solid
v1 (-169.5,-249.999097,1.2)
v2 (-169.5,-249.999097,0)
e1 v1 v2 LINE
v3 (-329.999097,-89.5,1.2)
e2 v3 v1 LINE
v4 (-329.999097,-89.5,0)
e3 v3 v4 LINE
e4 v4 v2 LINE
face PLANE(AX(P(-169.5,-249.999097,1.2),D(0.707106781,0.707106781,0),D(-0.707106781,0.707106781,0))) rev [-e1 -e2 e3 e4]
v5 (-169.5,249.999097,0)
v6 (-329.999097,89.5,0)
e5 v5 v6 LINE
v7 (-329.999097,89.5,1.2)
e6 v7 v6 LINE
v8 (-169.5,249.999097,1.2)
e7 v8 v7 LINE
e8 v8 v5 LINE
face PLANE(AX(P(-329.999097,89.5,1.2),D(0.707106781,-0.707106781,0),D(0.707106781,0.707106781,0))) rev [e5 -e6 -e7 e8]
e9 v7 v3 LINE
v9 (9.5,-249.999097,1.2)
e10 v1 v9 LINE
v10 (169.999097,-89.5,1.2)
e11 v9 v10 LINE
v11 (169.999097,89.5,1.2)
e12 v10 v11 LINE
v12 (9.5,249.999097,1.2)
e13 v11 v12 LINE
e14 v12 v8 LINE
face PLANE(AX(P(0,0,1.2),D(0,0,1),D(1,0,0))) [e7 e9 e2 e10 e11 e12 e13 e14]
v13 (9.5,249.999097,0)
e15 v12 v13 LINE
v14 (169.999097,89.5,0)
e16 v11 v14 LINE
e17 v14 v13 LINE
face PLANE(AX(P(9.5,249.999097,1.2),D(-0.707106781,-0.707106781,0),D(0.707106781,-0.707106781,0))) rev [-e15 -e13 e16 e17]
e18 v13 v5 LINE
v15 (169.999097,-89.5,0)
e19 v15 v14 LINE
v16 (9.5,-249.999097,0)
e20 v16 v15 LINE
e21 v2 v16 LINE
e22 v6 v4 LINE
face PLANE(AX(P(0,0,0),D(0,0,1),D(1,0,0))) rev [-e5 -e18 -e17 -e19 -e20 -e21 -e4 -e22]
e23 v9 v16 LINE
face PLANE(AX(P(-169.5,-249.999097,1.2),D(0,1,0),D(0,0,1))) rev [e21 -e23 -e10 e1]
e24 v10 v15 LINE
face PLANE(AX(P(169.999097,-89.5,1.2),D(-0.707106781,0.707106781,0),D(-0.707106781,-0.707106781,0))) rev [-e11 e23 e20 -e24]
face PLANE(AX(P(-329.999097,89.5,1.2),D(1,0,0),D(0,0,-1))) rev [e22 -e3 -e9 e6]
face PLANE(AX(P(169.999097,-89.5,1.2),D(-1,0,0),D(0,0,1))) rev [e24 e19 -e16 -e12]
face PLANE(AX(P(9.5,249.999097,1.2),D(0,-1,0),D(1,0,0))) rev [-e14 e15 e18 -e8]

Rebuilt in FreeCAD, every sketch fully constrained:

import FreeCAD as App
import Part
import Sketcher
Q = App.Units.Quantity

doc = App.newDocument("Part")
body = doc.addObject("PartDesign::Body", "Body")

# Sketch on XY plane
sketch1 = doc.addObject("Sketcher::SketchObject", "Sketch")
body.addObject(sketch1)
sketch1.AttachmentSupport = (doc.XY_Plane, [""])
sketch1.MapMode = "FlatFace"
sketch1.addGeometry(Part.LineSegment(App.Vector(170, 90, 0), App.Vector(10, 250, 0)), False)
sketch1.addGeometry(Part.LineSegment(App.Vector(10, 250, 0), App.Vector(-170, 250, 0)), False)
sketch1.addGeometry(Part.LineSegment(App.Vector(-170, 250, 0), App.Vector(-330, 90, 0)), False)
sketch1.addGeometry(Part.LineSegment(App.Vector(-330, 90, 0), App.Vector(-330, -90, 0)), False)
sketch1.addGeometry(Part.LineSegment(App.Vector(-330, -90, 0), App.Vector(-170, -250, 0)), False)
sketch1.addGeometry(Part.LineSegment(App.Vector(-170, -250, 0), App.Vector(10, -250, 0)), False)
sketch1.addGeometry(Part.LineSegment(App.Vector(10, -250, 0), App.Vector(170, -90, 0)), False)
sketch1.addGeometry(Part.LineSegment(App.Vector(170, -90, 0), App.Vector(170, 90, 0)), False)
sketch1.addConstraint(Sketcher.Constraint("Coincident", 0, 2, 1, 1))
sketch1.addConstraint(Sketcher.Constraint("Coincident", 1, 2, 2, 1))
sketch1.addConstraint(Sketcher.Constraint("Coincident", 2, 2, 3, 1))
sketch1.addConstraint(Sketcher.Constraint("Coincident", 3, 2, 4, 1))
sketch1.addConstraint(Sketcher.Constraint("Coincident", 4, 2, 5, 1))
sketch1.addConstraint(Sketcher.Constraint("Coincident", 5, 2, 6, 1))
sketch1.addConstraint(Sketcher.Constraint("Coincident", 6, 2, 7, 1))
sketch1.addConstraint(Sketcher.Constraint("Coincident", 7, 2, 0, 1))
sketch1.addConstraint(Sketcher.Constraint("Horizontal", 1))
sketch1.addConstraint(Sketcher.Constraint("Vertical", 3))
sketch1.addConstraint(Sketcher.Constraint("Horizontal", 5))
sketch1.addConstraint(Sketcher.Constraint("Vertical", 7))
sketch1.addConstraint(Sketcher.Constraint("Symmetric", 1, 2, 4, 2, -1))
sketch1.addConstraint(Sketcher.Constraint("Perpendicular", 0, 2))
sketch1.addConstraint(Sketcher.Constraint("Perpendicular", 2, 4))
sketch1.addConstraint(Sketcher.Constraint("Perpendicular", 4, 6))
sketch1.addConstraint(Sketcher.Constraint("Horizontal", 3, 2, 6, 2))
sketch1.addConstraint(Sketcher.Constraint("Horizontal", 2, 2, 7, 2))
sketch1.addConstraint(Sketcher.Constraint("Vertical", 0, 2, 5, 2))
sketch1.addConstraint(Sketcher.Constraint("Equal", 5, 3))
sketch1.addConstraint(Sketcher.Constraint("DistanceX", 1, 2, 1, 1, Q("179 mm")))
sketch1.addConstraint(Sketcher.Constraint("DistanceX", -1, 1, 0, 2, Q("9.5 mm")))
sketch1.addConstraint(Sketcher.Constraint("Distance", 0, Q("226.98 mm")))
pad1 = doc.addObject("PartDesign::Pad", "Pad")
body.addObject(pad1)
pad1.Profile = sketch1
pad1.Length = 1.2

doc.recompute()
